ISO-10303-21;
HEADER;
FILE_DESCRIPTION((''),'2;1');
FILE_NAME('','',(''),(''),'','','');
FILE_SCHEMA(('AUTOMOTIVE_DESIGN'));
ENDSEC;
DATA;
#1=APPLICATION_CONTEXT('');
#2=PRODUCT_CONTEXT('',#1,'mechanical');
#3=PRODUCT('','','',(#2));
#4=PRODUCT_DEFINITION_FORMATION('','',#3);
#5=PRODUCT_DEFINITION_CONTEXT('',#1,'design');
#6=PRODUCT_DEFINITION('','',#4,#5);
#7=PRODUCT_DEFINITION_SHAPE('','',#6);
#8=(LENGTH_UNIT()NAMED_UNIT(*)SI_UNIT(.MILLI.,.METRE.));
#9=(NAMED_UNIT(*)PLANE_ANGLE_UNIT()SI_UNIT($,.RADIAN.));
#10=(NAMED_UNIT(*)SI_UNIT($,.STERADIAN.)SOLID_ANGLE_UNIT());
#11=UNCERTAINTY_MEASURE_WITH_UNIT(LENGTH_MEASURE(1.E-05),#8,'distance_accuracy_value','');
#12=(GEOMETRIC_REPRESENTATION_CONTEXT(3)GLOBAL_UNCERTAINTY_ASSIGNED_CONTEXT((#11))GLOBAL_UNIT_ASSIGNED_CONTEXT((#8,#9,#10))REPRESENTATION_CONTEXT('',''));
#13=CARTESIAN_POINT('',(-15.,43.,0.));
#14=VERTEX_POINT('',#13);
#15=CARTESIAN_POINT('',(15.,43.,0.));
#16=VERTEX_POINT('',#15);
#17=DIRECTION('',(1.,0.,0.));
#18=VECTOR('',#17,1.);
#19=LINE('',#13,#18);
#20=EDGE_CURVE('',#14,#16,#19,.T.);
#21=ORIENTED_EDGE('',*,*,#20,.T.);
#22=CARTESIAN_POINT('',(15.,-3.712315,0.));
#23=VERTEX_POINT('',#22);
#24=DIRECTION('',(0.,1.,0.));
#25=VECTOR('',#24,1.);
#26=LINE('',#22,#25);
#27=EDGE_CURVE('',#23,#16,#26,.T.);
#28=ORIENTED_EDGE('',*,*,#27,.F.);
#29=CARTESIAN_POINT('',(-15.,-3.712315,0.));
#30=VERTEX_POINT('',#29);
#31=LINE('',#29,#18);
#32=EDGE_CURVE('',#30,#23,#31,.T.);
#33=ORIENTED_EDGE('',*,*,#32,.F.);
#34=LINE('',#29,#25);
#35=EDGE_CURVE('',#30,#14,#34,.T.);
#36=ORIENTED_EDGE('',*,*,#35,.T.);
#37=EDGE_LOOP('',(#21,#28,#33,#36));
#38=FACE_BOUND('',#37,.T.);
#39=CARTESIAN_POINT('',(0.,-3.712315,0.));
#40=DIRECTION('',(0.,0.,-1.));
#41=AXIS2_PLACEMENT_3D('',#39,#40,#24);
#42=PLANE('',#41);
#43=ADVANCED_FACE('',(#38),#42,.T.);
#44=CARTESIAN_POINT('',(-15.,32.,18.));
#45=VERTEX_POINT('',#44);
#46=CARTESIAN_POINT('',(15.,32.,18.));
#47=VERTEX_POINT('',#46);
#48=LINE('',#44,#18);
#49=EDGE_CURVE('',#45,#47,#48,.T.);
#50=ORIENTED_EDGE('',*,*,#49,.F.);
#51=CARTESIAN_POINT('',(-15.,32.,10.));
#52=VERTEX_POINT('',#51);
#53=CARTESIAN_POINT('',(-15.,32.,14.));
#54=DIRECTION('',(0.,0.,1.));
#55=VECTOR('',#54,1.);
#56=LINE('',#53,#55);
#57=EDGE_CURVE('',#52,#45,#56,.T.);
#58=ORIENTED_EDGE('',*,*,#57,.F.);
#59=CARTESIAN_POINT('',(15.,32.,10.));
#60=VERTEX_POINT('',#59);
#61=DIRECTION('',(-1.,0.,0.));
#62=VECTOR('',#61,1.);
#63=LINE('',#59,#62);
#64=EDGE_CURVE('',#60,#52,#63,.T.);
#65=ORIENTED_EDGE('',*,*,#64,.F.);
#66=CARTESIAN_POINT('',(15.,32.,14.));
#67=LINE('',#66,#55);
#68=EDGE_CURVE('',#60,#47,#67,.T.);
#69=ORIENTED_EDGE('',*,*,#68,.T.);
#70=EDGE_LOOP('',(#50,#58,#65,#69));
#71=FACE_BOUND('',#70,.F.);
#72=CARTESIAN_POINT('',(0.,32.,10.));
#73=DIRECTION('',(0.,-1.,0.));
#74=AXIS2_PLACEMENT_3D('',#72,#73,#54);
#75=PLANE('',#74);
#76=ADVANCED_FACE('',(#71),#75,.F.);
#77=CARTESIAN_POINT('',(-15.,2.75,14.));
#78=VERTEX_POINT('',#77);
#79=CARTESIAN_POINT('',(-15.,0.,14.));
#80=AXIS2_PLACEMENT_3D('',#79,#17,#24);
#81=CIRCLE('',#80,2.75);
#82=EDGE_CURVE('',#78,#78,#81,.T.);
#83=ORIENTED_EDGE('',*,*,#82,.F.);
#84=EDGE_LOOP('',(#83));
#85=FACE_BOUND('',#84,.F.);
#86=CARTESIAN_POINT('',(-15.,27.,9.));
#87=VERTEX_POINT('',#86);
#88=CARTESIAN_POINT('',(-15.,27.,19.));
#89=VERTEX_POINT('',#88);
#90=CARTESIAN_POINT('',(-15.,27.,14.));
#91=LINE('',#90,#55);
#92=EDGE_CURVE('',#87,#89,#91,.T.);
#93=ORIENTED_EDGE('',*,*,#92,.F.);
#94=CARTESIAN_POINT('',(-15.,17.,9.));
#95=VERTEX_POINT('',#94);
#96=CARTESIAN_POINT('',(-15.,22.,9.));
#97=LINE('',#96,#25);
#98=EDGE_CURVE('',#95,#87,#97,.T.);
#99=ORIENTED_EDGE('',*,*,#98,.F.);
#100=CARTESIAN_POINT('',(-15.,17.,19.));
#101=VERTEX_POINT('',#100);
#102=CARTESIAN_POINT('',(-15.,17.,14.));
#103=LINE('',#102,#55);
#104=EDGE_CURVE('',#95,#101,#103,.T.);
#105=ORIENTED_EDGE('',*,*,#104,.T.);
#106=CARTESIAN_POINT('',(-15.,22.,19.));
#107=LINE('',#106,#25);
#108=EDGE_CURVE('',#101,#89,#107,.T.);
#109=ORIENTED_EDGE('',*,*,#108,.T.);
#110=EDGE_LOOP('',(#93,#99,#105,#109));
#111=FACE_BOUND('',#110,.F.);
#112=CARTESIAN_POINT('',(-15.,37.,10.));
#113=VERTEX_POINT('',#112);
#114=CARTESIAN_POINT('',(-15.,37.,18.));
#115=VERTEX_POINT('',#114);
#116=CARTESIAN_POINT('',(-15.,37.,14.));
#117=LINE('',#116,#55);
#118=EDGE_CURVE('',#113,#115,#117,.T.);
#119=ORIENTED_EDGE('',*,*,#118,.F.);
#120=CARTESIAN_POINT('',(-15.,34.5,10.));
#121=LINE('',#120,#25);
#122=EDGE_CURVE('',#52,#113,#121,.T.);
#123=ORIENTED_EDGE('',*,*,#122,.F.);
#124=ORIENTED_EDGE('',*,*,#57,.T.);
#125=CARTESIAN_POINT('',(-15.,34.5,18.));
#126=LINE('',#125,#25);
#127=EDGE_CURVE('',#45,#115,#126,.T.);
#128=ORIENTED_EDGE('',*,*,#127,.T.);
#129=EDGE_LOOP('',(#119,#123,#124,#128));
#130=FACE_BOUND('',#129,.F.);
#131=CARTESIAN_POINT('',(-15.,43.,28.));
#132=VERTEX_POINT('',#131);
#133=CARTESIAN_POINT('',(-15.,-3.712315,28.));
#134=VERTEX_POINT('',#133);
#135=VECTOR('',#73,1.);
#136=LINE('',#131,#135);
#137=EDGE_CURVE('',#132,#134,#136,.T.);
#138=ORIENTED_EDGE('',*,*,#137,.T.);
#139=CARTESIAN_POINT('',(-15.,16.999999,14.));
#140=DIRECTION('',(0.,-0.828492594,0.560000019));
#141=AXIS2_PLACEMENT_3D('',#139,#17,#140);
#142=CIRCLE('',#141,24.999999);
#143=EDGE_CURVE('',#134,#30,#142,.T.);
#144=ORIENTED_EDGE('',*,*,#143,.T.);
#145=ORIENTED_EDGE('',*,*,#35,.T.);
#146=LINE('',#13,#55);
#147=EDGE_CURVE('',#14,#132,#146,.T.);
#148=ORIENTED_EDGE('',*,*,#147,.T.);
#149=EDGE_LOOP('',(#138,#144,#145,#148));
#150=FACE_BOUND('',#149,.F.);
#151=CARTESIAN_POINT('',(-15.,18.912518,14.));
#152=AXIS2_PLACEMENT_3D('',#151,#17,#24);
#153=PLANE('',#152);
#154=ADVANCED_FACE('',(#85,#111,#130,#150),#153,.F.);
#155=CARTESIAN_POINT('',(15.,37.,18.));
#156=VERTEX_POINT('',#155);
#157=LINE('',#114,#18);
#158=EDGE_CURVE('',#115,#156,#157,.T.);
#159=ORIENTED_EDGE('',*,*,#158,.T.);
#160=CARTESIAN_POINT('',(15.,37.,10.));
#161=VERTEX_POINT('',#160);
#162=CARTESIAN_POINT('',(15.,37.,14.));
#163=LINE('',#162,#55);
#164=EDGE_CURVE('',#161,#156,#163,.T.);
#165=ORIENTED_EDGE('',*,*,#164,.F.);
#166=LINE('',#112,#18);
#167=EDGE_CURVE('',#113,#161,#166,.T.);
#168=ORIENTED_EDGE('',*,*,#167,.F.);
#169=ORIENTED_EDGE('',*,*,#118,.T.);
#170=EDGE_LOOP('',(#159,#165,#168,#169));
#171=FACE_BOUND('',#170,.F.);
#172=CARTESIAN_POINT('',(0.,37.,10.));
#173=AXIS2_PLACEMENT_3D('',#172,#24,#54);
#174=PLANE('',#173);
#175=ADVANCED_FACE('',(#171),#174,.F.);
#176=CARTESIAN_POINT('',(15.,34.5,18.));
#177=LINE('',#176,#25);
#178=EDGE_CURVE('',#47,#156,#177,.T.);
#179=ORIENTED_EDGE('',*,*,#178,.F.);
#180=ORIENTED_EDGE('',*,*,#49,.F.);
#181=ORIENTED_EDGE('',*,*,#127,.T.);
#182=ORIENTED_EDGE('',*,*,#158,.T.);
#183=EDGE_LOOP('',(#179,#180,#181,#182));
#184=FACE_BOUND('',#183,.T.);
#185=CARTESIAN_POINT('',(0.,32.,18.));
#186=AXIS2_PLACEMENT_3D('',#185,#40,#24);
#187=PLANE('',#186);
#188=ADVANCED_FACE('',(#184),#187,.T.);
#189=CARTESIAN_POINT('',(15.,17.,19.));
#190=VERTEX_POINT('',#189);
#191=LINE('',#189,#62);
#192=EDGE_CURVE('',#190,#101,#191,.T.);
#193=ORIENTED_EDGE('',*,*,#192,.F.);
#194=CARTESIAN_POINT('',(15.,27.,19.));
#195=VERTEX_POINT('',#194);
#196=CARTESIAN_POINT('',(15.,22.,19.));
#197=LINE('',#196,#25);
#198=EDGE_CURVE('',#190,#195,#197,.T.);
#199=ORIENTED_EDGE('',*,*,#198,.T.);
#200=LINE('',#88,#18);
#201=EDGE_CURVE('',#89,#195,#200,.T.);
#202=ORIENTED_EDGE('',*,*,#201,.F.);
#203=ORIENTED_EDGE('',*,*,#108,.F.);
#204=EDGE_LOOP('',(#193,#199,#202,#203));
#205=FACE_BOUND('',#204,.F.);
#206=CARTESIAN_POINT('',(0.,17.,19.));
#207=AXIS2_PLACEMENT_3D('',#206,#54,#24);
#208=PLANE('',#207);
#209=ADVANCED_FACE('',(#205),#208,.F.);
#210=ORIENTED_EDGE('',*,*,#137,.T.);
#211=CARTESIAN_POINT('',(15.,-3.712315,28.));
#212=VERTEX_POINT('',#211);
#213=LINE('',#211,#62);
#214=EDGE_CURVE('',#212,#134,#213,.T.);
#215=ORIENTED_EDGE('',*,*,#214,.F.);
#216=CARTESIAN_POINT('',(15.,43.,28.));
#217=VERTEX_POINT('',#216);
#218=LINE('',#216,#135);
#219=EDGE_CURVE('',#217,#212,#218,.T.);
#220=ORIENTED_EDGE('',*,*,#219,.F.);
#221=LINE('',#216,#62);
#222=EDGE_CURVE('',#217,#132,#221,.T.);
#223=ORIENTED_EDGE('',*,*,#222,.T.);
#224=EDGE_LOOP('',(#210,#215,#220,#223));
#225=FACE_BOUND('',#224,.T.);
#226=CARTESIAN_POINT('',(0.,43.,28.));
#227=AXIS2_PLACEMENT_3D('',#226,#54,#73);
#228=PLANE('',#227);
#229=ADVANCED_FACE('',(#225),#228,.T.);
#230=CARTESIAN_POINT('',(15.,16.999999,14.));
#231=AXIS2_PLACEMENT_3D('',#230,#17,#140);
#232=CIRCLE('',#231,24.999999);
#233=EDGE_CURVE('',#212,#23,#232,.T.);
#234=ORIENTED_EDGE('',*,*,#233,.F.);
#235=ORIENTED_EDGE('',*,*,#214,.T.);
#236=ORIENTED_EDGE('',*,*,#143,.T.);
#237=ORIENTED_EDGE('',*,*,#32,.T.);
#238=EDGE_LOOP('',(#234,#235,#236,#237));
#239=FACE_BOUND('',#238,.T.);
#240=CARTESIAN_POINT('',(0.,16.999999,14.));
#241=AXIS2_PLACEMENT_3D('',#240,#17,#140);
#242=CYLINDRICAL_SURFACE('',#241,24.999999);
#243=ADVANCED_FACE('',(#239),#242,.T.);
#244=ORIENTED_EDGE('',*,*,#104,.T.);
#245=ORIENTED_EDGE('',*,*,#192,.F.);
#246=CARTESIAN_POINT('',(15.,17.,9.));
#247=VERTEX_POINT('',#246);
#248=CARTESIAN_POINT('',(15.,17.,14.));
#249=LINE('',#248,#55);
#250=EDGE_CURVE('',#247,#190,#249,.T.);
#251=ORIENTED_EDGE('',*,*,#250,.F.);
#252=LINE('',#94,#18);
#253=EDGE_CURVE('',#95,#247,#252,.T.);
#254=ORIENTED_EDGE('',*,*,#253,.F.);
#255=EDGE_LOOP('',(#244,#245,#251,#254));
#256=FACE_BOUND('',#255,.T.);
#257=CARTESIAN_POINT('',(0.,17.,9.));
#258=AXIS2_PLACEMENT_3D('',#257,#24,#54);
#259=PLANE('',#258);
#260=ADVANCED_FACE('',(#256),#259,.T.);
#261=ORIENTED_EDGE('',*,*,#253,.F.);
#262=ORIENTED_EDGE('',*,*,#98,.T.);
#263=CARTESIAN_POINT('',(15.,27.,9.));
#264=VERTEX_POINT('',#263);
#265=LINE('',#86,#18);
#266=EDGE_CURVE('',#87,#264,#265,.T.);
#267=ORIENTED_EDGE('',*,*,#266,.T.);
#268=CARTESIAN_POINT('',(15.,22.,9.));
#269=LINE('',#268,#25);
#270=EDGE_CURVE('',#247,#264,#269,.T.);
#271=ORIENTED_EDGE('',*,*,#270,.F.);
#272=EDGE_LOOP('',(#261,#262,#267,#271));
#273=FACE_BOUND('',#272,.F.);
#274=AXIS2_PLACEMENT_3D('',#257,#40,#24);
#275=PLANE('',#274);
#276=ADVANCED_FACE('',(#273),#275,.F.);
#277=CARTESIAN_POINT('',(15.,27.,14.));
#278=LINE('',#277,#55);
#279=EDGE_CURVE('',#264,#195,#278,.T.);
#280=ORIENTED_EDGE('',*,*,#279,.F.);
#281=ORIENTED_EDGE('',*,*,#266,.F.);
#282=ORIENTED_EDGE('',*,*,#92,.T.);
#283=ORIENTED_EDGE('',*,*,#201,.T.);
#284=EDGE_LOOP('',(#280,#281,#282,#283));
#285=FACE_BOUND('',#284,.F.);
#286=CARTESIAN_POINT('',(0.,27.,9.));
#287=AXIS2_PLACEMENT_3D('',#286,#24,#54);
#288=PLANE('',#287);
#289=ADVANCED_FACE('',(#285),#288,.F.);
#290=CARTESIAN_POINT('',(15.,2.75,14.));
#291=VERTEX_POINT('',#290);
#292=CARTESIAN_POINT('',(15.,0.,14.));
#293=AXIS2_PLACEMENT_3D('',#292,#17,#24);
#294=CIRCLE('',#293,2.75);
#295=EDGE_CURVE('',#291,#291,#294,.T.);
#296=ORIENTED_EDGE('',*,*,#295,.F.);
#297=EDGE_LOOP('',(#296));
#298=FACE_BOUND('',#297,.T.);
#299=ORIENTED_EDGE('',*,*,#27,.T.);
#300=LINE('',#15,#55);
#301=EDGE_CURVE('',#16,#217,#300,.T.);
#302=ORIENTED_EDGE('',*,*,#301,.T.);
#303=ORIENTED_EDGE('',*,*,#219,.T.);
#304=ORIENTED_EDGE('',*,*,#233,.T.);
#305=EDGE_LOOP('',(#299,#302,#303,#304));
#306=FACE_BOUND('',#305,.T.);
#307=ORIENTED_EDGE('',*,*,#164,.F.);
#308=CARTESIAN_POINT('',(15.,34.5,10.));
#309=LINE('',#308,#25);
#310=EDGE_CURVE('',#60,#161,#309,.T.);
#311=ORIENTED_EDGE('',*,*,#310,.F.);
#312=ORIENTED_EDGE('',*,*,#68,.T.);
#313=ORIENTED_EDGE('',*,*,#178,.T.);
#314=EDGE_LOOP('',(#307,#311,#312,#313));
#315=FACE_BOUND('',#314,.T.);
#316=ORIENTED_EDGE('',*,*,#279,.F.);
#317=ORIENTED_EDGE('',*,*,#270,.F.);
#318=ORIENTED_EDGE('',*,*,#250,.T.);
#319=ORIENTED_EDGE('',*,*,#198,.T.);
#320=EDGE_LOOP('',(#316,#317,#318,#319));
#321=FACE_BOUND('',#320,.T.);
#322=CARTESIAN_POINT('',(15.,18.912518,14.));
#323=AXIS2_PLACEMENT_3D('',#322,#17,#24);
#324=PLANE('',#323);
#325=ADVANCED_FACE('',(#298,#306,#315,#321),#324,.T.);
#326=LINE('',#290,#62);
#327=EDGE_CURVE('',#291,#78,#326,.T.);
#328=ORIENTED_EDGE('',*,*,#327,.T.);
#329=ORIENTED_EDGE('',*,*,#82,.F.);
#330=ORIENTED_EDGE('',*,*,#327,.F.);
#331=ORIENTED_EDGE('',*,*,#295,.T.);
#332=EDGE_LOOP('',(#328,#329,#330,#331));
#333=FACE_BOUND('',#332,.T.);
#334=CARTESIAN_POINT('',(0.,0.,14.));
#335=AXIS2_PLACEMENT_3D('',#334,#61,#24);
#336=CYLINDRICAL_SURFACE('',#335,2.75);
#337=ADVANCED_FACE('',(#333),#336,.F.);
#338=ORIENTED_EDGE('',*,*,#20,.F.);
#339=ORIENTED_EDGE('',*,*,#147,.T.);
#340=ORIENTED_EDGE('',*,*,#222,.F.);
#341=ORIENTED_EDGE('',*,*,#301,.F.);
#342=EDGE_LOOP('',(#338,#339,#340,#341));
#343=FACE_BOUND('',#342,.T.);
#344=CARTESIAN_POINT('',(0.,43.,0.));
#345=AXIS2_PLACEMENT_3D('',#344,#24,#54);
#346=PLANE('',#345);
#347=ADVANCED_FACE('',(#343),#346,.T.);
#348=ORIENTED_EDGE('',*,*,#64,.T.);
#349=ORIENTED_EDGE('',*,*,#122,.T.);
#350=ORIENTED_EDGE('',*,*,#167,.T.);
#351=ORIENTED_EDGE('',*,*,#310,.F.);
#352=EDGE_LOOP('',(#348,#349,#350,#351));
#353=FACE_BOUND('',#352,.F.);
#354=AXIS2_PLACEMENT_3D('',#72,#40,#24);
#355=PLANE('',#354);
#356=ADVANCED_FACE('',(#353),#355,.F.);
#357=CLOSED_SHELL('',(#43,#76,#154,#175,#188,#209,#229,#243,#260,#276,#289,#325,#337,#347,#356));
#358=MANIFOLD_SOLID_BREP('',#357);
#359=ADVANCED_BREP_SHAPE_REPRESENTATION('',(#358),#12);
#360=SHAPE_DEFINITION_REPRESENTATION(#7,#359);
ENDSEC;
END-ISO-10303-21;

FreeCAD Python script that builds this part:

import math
import FreeCAD as App
import Part
import Sketcher

V = App.Vector

doc = App.newDocument("Part")
body = doc.addObject("PartDesign::Body", "Body")

sketch1 = body.newObject("Sketcher::SketchObject", "Sketch")
sketch1.AttachmentSupport = (doc.getObject("YZ_Plane"), [""])
sketch1.MapMode = "FlatFace"
sketch1.addGeometry(Part.ArcOfCircle(Part.Circle(V(17, 14, 0), V(0, 0, 1), 25), math.radians(146), math.radians(214)), False)
sketch1.addGeometry(Part.LineSegment(V(-3.7, 0, 0), V(43, 0, 0)), False)
sketch1.addGeometry(Part.LineSegment(V(43, 0, 0), V(43, 28, 0)), False)
sketch1.addGeometry(Part.LineSegment(V(43, 28, 0), V(-3.7, 28, 0)), False)
sketch1.addGeometry(Part.Circle(V(0, 14, 0), V(0, 0, 1), 2.8), False)
sketch1.addGeometry(Part.LineSegment(V(27, 9, 0), V(17, 9, 0)), False)
sketch1.addGeometry(Part.LineSegment(V(17, 9, 0), V(17, 19, 0)), False)
sketch1.addGeometry(Part.LineSegment(V(17, 19, 0), V(27, 19, 0)), False)
sketch1.addGeometry(Part.LineSegment(V(27, 19, 0), V(27, 9, 0)), False)
sketch1.addGeometry(Part.LineSegment(V(37, 10, 0), V(32, 10, 0)), False)
sketch1.addGeometry(Part.LineSegment(V(32, 10, 0), V(32, 18, 0)), False)
sketch1.addGeometry(Part.LineSegment(V(32, 18, 0), V(37, 18, 0)), False)
sketch1.addGeometry(Part.LineSegment(V(37, 18, 0), V(37, 10, 0)), False)
sketch1.addConstraint(Sketcher.Constraint("Coincident", 0, 2, 1, 1))
sketch1.addConstraint(Sketcher.Constraint("Coincident", 1, 2, 2, 1))
sketch1.addConstraint(Sketcher.Constraint("Coincident", 2, 2, 3, 1))
sketch1.addConstraint(Sketcher.Constraint("Coincident", 3, 2, 0, 1))
sketch1.addConstraint(Sketcher.Constraint("Coincident", 5, 2, 6, 1))
sketch1.addConstraint(Sketcher.Constraint("Coincident", 6, 2, 7, 1))
sketch1.addConstraint(Sketcher.Constraint("Coincident", 7, 2, 8, 1))
sketch1.addConstraint(Sketcher.Constraint("Coincident", 8, 2, 5, 1))
sketch1.addConstraint(Sketcher.Constraint("Coincident", 9, 2, 10, 1))
sketch1.addConstraint(Sketcher.Constraint("Coincident", 10, 2, 11, 1))
sketch1.addConstraint(Sketcher.Constraint("Coincident", 11, 2, 12, 1))
sketch1.addConstraint(Sketcher.Constraint("Coincident", 12, 2, 9, 1))
sketch1.addConstraint(Sketcher.Constraint("Horizontal", 1))
sketch1.addConstraint(Sketcher.Constraint("Vertical", 2))
sketch1.addConstraint(Sketcher.Constraint("Horizontal", 3))
sketch1.addConstraint(Sketcher.Constraint("Horizontal", 5))
sketch1.addConstraint(Sketcher.Constraint("Vertical", 6))
sketch1.addConstraint(Sketcher.Constraint("Horizontal", 7))
sketch1.addConstraint(Sketcher.Constraint("Vertical", 8))
sketch1.addConstraint(Sketcher.Constraint("Horizontal", 9))
sketch1.addConstraint(Sketcher.Constraint("Vertical", 10))
sketch1.addConstraint(Sketcher.Constraint("Horizontal", 11))
sketch1.addConstraint(Sketcher.Constraint("Vertical", 12))
sketch1.addConstraint(Sketcher.Constraint("PointOnObject", 4, 3, -2))
sketch1.addConstraint(Sketcher.Constraint("PointOnObject", 0, 2, -1))
sketch1.addConstraint(Sketcher.Constraint("Horizontal", 0, 3, 4, 3))
sketch1.addConstraint(Sketcher.Constraint("Vertical", 0, 2, 3, 2))
sketch1.addConstraint(Sketcher.Constraint("Vertical", 0, 3, 5, 2))
sketch1.addConstraint(Sketcher.Constraint("Equal", 7, 6))
sketch1.addConstraint(Sketcher.Constraint("Radius", 0, 24.999999))
sketch1.addConstraint(Sketcher.Constraint("Diameter", 4, 5.5))
sketch1.addConstraint(Sketcher.Constraint("DistanceX", 5, 2, 5, 1, 10.0))
sketch1.addConstraint(Sketcher.Constraint("DistanceX", 9, 2, 9, 1, 5.0))
sketch1.addConstraint(Sketcher.Constraint("DistanceY", 2, 1, 2, 2, 28.0))
sketch1.addConstraint(Sketcher.Constraint("DistanceY", 10, 1, 10, 2, 8.0))
sketch1.addConstraint(Sketcher.Constraint("DistanceX", -1, 1, 0, 3, 16.999999))
sketch1.addConstraint(Sketcher.Constraint("DistanceX", -1, 1, 1, 2, 43.0))
sketch1.addConstraint(Sketcher.Constraint("DistanceY", -1, 1, 5, 2, 9.0))
sketch1.addConstraint(Sketcher.Constraint("DistanceX", -1, 1, 9, 2, 32.0))
sketch1.addConstraint(Sketcher.Constraint("DistanceY", -1, 1, 9, 2, 10.0))
pad1 = body.newObject("PartDesign::Pad", "Pad")
pad1.Profile = sketch1
pad1.Length = 30
pad1.Midplane = True

doc.recompute()
